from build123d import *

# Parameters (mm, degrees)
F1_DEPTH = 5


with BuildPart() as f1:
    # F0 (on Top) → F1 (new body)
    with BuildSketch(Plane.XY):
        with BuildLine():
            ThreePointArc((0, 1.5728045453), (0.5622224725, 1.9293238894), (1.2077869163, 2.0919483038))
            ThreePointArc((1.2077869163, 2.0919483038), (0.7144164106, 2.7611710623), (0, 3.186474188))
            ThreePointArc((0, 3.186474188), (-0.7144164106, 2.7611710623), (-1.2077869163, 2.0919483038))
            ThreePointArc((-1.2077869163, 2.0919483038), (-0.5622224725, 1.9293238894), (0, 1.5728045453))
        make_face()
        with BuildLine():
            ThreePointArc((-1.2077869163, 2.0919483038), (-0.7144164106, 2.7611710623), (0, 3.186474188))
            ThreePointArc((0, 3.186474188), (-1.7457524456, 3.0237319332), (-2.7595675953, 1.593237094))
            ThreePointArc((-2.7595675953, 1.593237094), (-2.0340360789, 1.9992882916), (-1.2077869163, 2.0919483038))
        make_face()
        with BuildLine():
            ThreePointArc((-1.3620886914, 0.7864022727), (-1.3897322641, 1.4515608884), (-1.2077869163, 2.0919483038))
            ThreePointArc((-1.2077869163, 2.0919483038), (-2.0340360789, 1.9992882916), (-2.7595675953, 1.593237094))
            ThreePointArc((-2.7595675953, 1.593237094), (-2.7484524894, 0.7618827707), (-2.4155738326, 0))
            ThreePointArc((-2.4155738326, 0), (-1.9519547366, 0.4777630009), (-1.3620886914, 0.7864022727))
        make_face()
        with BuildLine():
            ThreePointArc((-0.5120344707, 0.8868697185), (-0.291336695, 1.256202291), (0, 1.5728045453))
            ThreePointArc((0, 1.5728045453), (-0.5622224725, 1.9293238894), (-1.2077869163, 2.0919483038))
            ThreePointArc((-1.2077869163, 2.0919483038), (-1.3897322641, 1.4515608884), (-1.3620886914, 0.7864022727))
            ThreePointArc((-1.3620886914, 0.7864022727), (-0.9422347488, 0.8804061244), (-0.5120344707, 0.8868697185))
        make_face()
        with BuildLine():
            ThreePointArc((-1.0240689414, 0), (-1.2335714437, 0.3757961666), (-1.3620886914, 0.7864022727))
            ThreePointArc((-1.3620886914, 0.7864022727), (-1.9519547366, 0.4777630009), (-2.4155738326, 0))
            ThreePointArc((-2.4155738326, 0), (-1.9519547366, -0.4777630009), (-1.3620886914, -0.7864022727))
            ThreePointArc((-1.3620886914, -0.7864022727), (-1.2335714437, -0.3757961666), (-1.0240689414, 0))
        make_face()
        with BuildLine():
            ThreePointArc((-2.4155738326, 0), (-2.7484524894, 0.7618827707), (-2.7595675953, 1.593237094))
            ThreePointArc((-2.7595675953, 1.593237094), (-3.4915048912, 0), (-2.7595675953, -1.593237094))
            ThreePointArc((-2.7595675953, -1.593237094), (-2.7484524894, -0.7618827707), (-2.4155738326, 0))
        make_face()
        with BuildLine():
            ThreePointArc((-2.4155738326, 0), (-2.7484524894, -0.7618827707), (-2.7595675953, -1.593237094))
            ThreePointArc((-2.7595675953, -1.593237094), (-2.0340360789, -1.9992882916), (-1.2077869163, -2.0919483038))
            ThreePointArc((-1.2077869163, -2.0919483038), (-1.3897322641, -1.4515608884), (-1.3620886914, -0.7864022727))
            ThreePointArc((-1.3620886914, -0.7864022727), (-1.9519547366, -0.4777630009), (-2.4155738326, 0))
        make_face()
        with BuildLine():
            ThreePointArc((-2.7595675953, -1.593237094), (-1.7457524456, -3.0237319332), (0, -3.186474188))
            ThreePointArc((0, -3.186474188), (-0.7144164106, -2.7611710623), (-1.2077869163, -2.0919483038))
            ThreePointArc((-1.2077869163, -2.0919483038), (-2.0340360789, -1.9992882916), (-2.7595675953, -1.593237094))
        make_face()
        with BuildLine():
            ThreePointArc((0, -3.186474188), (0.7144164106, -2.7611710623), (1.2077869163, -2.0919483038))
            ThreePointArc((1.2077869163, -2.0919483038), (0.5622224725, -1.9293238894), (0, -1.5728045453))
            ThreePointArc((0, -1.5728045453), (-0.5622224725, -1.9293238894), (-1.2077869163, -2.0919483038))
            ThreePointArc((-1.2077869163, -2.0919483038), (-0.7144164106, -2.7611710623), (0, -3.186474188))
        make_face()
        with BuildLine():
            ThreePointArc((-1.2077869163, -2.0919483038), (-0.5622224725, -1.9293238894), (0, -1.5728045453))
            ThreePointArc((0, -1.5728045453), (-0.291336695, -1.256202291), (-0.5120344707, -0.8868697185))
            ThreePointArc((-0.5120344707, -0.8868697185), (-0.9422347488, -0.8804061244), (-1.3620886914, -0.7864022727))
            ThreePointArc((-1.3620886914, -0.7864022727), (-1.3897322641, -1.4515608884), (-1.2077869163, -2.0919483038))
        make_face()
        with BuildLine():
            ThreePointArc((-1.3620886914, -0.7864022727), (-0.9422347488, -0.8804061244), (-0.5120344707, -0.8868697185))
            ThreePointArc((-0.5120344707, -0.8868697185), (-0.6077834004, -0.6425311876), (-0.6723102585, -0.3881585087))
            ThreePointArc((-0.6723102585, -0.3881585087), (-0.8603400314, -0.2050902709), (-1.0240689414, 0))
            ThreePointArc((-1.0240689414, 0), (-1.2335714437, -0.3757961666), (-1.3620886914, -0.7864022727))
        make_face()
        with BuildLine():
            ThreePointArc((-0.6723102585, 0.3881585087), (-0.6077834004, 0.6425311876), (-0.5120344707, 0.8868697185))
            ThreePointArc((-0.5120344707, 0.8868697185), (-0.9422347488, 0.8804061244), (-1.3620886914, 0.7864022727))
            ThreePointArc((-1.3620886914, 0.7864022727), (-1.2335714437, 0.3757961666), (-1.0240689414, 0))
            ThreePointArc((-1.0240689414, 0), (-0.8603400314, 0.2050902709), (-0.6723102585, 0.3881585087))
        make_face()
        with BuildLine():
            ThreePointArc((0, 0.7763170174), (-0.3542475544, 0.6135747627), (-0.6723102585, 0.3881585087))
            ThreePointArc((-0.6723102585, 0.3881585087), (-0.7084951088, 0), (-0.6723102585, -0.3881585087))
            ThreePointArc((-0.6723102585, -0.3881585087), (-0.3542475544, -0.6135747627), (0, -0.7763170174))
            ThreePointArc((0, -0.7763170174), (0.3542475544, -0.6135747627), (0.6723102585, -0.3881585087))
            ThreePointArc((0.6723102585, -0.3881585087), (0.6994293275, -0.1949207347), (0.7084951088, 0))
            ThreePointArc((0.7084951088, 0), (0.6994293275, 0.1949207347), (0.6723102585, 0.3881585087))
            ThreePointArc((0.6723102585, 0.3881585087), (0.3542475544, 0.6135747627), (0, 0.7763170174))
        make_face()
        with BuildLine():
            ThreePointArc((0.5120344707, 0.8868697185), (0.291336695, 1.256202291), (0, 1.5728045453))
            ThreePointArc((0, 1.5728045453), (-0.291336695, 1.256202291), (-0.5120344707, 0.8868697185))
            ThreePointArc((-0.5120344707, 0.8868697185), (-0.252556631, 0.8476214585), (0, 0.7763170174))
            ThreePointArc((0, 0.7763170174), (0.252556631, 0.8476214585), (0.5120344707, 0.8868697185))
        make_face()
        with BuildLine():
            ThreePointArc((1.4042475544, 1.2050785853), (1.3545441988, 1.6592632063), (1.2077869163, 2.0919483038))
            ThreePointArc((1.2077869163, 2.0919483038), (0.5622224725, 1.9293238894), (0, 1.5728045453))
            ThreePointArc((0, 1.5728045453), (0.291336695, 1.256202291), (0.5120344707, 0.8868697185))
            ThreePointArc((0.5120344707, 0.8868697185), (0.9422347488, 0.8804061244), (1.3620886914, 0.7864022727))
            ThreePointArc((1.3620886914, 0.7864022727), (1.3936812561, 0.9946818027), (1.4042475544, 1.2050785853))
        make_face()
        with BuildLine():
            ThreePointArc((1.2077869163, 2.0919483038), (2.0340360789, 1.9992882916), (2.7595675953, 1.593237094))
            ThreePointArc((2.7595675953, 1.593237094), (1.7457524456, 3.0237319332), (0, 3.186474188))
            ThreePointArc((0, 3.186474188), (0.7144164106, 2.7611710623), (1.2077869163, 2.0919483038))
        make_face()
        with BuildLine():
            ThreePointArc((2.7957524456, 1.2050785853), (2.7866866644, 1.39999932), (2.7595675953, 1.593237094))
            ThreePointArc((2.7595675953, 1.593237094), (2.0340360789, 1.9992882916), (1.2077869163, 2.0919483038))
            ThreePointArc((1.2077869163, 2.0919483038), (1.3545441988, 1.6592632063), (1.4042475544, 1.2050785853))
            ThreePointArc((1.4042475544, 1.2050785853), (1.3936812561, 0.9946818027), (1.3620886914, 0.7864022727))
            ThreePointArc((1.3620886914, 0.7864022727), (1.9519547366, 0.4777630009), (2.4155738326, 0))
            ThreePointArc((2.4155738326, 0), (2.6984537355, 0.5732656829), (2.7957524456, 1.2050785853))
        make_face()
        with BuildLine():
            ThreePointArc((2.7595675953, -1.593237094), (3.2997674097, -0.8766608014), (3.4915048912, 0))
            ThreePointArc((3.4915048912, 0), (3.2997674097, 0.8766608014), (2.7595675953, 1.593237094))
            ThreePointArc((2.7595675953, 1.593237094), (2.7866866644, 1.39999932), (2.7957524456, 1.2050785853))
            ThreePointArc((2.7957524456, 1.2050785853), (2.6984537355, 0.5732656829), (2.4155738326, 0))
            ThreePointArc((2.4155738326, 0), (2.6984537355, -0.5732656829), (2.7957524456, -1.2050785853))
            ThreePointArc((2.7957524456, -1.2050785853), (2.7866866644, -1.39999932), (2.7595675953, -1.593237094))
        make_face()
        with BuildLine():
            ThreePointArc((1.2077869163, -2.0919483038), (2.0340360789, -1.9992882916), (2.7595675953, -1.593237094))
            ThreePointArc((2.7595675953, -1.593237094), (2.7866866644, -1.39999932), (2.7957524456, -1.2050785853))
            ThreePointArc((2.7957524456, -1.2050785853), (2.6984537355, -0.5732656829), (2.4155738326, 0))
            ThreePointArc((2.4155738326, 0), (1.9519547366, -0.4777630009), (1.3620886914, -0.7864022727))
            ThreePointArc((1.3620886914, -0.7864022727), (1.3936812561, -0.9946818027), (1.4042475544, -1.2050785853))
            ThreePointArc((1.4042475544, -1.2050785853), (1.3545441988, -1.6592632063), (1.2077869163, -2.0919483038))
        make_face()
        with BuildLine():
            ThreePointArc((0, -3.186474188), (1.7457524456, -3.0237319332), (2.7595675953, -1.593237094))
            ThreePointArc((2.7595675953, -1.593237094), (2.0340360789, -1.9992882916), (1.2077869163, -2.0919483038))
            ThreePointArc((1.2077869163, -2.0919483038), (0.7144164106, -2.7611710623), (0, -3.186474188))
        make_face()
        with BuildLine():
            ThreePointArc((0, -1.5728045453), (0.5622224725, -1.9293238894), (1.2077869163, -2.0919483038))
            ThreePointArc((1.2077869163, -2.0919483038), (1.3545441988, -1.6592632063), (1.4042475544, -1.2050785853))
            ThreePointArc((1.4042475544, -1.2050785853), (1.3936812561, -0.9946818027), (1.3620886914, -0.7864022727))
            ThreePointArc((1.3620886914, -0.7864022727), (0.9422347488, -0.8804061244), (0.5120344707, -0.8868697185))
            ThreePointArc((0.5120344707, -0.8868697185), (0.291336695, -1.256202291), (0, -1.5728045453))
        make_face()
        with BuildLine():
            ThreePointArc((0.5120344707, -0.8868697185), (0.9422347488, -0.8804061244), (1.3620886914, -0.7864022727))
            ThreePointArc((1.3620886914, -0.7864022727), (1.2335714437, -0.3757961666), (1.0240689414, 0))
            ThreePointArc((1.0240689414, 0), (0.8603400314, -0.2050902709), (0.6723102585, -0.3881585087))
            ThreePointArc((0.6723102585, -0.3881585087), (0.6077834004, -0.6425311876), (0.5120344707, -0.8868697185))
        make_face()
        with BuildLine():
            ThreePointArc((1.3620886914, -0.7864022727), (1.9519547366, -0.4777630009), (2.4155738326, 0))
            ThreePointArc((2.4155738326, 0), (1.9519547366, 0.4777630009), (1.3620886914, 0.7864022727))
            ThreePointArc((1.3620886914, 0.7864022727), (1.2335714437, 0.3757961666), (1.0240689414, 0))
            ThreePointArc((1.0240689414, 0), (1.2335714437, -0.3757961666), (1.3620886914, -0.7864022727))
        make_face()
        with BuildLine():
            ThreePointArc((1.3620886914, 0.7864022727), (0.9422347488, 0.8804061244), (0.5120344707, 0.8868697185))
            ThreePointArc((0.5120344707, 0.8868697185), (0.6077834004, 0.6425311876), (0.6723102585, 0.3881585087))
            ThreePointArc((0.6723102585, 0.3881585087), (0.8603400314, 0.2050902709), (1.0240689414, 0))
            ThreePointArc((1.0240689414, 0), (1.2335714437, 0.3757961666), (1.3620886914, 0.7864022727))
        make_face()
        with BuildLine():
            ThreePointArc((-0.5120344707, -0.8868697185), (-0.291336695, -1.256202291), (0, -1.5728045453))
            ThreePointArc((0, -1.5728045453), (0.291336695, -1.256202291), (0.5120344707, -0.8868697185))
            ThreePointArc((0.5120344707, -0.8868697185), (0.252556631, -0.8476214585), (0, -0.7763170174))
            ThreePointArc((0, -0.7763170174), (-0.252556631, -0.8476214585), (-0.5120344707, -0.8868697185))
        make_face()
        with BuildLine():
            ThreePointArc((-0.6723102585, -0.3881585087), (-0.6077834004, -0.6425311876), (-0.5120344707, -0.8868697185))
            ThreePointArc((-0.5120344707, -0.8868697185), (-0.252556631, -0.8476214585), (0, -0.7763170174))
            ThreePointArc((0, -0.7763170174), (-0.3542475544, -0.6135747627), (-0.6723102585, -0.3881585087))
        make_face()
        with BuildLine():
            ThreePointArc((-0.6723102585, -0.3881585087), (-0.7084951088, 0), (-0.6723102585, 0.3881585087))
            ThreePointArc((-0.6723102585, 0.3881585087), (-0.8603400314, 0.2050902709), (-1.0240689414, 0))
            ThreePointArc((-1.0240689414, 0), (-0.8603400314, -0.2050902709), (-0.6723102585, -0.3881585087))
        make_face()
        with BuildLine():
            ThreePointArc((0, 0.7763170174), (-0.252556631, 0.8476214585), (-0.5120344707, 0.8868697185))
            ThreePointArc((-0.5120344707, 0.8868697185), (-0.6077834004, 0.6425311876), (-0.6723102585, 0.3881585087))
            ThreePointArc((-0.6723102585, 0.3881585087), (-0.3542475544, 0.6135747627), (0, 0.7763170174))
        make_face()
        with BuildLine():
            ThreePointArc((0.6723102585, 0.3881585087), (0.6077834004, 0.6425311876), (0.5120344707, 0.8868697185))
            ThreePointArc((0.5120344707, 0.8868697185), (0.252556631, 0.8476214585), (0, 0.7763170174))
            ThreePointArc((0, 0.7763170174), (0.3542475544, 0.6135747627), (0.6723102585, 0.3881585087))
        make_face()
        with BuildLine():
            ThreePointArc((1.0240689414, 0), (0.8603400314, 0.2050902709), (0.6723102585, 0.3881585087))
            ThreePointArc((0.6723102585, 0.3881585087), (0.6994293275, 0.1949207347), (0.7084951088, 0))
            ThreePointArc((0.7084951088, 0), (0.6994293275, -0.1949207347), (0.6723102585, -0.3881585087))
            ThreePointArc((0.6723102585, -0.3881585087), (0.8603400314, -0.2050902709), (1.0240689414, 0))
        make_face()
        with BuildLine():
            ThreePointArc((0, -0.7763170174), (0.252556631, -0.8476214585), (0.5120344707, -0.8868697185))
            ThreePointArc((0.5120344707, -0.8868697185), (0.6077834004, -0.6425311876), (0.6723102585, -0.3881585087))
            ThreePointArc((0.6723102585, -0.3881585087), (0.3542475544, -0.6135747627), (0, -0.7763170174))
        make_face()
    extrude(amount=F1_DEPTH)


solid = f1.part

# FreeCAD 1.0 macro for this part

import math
import FreeCAD as App
import Part
import Sketcher

V = App.Vector

doc = App.newDocument("Part")
body = doc.addObject("PartDesign::Body", "Body")

# Sketch on XY plane
sketch1 = body.newObject("Sketcher::SketchObject", "Sketch")
sketch1.AttachmentSupport = (doc.getObject("XY_Plane"), [""])
sketch1.MapMode = "FlatFace"
sketch1.addGeometry([
    Part.ArcOfCircle(Part.Circle(V(-0.7, -1.2, 0), V(0, 0, 1), 2.1), math.radians(-169), math.radians(-71)),  # 0
    Part.ArcOfCircle(Part.Circle(V(0.7, -1.2, 0), V(0, 0, 1), 2.1), math.radians(-109), math.radians(-11)),  # 1
    Part.ArcOfCircle(Part.Circle(V(1.4, 0, 0), V(0, 0, 1), 2.1), math.radians(-49), math.radians(0)),  # 2
    Part.ArcOfCircle(Part.Circle(V(1.4, 0, 0), V(0, 0, 1), 2.1), math.radians(0), math.radians(49)),  # 3
    Part.ArcOfCircle(Part.Circle(V(0.7, 1.2, 0), V(0, 0, 1), 2.1), math.radians(11), math.radians(109)),  # 4
    Part.ArcOfCircle(Part.Circle(V(-0.7, 1.2, 0), V(0, 0, 1), 2.1), math.radians(71), math.radians(169)),  # 5
    Part.ArcOfCircle(Part.Circle(V(-1.4, 0, 0), V(0, 0, 1), 2.1), math.radians(131), math.radians(229)),  # 6
], False)
sketch1.addConstraint([
    Sketcher.Constraint("Coincident", 0, 2, 1, 1),
    Sketcher.Constraint("Coincident", 1, 2, 2, 1),
    Sketcher.Constraint("Tangent", 2, 2, 3, 1),
    Sketcher.Constraint("Coincident", 3, 2, 4, 1),
    Sketcher.Constraint("Coincident", 4, 2, 5, 1),
    Sketcher.Constraint("Coincident", 5, 2, 6, 1),
    Sketcher.Constraint("Coincident", 6, 2, 0, 1),
    Sketcher.Constraint("Equal", 0, 1),
    Sketcher.Constraint("Equal", 1, 2),
    Sketcher.Constraint("Equal", 2, 3),
    Sketcher.Constraint("Equal", 3, 4),
    Sketcher.Constraint("Equal", 4, 5),
    Sketcher.Constraint("Equal", 5, 6),
    Sketcher.Constraint("Symmetric", 0, 3, 4, 3, -1, 1),
    Sketcher.Constraint("Symmetric", 1, 3, 5, 3, -1, 1),
    Sketcher.Constraint("Symmetric", 2, 3, 6, 3, -1, 1),
    Sketcher.Constraint("Symmetric", 0, 3, 1, 3, -2),
    Sketcher.Constraint("PointOnObject", 2, 3, -1),
    Sketcher.Constraint("PointOnObject", 2, 2, -1),
    Sketcher.Constraint("Radius", 0, 2.1),
    Sketcher.Constraint("DistanceY", 0, 3, -1, 1, 1.205079),
    Sketcher.Constraint("DistanceX", 6, 3, 2, 3, 2.78301),
    Sketcher.Constraint("DistanceY", 1, 2, 1, 3, 0.388159),
])
pad1 = body.newObject("PartDesign::Pad", "Pad")
pad1.Profile = sketch1
pad1.Length = 5

doc.recompute()
